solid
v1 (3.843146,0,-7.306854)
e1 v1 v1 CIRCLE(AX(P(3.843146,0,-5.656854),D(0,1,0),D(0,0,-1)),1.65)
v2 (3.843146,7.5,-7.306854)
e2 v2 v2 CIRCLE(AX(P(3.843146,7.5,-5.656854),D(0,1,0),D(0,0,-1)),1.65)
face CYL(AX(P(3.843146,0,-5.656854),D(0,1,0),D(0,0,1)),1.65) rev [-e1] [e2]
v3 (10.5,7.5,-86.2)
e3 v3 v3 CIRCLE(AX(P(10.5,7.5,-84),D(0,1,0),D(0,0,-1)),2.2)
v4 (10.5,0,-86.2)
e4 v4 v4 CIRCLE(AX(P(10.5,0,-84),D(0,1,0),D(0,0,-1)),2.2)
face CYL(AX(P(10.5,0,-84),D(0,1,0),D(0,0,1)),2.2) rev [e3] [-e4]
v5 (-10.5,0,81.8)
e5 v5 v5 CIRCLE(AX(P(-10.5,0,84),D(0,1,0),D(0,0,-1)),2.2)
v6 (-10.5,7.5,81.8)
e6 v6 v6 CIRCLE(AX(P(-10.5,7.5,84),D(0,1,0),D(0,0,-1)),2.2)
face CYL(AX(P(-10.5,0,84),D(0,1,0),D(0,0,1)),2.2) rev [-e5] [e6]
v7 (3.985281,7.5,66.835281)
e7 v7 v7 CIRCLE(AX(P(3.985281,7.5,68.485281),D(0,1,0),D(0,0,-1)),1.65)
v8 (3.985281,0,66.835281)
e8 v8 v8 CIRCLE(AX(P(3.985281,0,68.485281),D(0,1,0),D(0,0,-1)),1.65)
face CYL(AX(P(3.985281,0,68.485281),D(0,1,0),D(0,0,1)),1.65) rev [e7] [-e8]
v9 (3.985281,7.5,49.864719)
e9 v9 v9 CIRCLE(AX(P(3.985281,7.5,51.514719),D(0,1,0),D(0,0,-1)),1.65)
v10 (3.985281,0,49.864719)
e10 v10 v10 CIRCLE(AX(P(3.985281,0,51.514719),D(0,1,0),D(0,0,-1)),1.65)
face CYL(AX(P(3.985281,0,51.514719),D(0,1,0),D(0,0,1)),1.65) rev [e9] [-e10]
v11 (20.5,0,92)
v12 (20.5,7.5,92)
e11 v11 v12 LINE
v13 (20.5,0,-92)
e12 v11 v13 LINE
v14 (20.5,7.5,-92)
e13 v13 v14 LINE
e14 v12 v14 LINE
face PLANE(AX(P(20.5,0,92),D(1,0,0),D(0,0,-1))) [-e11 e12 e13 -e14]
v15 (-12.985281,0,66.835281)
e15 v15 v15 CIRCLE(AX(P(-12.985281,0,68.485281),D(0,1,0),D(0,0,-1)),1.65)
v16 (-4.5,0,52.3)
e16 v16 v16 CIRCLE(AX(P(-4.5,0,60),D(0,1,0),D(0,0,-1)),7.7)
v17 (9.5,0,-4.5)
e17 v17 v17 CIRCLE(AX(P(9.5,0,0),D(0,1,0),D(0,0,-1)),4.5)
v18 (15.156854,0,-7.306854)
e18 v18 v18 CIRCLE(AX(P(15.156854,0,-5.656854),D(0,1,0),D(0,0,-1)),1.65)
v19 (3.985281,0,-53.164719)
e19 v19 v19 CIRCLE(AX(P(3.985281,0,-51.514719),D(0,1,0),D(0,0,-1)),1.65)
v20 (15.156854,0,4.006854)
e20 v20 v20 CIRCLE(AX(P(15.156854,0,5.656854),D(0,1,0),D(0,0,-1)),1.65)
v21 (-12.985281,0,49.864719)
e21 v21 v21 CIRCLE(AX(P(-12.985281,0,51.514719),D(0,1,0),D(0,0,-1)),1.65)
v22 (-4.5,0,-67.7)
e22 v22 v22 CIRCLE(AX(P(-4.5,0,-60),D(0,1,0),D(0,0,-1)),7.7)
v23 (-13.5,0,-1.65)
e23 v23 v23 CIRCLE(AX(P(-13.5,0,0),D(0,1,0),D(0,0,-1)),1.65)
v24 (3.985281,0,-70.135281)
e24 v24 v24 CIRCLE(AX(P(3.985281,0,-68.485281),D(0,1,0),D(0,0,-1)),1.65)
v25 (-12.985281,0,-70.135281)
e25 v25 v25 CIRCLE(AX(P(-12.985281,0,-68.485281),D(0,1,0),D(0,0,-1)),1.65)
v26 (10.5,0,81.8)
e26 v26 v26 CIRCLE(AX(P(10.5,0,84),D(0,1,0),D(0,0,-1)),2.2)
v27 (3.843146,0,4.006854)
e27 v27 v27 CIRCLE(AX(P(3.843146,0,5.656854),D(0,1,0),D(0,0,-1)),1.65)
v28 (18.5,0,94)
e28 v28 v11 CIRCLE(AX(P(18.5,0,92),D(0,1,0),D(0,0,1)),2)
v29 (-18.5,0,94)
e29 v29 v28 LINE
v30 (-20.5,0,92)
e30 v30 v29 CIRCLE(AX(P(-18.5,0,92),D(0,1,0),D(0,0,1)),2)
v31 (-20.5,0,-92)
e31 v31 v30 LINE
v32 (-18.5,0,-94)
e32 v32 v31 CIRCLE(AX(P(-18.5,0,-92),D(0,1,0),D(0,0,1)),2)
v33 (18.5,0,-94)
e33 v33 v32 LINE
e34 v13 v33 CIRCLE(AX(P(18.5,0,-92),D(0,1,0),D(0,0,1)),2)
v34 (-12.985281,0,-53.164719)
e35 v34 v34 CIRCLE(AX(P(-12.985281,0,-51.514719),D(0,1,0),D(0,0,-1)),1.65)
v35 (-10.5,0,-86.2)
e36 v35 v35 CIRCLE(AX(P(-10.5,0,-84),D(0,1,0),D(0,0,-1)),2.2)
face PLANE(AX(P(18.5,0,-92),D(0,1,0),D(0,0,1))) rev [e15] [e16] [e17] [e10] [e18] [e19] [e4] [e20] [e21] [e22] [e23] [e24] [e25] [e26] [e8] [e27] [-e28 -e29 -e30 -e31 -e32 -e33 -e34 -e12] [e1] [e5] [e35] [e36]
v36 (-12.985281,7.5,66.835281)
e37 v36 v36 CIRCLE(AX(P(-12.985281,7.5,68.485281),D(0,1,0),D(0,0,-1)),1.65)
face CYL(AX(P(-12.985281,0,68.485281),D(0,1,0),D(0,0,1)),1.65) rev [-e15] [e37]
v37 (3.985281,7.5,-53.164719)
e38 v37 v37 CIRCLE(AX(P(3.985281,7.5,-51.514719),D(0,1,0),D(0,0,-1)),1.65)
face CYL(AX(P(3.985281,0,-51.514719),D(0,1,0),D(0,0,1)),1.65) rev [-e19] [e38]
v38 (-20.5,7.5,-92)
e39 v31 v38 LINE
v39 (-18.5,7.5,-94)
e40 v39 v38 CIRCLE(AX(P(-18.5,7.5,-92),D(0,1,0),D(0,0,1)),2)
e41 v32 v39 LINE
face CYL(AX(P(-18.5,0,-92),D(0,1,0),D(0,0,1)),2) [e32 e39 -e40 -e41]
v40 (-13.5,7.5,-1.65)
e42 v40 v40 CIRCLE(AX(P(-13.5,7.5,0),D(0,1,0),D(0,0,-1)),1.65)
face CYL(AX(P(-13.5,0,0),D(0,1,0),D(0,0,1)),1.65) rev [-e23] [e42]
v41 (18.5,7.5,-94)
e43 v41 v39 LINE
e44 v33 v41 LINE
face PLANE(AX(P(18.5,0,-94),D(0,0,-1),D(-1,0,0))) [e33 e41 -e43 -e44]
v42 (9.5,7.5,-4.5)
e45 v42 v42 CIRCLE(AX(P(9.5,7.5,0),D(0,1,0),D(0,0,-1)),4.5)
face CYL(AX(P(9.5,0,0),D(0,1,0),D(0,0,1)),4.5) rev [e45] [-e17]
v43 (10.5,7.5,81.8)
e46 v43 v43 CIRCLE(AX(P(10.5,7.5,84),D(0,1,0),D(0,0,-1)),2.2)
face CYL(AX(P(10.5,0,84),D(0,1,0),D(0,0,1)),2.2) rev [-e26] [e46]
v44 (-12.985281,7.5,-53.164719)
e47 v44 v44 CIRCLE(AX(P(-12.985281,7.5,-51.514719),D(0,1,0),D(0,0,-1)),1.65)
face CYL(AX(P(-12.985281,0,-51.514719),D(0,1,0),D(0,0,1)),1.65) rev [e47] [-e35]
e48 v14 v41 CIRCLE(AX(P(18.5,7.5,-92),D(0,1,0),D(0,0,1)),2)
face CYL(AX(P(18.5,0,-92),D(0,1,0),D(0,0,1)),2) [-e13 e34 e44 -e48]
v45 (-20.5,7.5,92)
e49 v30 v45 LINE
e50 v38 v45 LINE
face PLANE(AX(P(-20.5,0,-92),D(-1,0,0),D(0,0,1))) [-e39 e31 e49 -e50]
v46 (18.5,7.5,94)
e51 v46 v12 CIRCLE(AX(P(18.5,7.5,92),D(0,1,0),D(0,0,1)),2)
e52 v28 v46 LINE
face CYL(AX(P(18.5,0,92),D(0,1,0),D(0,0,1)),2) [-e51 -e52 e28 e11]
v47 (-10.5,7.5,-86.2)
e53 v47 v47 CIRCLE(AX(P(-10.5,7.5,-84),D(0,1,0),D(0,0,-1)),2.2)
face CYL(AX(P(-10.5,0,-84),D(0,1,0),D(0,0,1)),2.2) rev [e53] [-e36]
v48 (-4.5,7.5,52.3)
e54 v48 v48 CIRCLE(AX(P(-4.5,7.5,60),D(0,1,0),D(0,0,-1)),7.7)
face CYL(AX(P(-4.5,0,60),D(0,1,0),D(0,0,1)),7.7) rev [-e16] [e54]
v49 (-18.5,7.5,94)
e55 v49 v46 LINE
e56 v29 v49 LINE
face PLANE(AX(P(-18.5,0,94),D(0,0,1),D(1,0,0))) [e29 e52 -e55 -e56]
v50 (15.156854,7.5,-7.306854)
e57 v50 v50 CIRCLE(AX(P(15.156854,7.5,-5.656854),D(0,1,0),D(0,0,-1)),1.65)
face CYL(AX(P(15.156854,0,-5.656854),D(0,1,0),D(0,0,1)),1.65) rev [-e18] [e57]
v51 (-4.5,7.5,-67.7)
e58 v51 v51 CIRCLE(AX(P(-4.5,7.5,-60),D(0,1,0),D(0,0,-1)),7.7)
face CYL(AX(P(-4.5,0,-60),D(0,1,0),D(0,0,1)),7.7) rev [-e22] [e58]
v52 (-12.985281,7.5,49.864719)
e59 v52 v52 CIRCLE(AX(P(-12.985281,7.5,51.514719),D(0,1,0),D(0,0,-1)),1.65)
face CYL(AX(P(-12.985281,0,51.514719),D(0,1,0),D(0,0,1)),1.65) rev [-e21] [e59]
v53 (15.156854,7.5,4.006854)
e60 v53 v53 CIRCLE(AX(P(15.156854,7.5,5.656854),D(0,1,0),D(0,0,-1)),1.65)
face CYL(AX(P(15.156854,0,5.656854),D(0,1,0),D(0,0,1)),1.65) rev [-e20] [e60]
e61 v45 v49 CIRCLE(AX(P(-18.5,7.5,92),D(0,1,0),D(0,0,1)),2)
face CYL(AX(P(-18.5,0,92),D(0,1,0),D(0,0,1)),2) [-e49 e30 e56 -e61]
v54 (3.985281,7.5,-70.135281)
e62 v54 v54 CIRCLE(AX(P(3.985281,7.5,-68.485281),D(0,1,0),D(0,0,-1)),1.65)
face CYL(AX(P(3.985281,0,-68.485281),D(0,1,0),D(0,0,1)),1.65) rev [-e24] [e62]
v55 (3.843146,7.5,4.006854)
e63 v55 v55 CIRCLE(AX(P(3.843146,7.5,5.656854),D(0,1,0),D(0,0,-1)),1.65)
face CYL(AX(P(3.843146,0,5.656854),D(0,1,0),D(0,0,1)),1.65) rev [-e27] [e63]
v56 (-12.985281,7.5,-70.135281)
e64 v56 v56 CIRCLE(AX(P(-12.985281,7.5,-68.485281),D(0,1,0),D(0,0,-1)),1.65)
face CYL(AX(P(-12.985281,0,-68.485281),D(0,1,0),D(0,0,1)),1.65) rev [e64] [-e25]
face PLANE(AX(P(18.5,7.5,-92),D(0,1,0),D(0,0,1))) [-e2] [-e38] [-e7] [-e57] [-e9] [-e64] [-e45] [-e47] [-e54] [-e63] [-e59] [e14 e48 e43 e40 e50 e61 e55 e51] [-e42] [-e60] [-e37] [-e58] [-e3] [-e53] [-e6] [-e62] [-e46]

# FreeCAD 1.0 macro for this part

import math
import FreeCAD as App
import Part
import Sketcher

V = App.Vector
Q = App.Units.Quantity

doc = App.newDocument("Part")
body = doc.addObject("PartDesign::Body", "Body")

sketch1 = body.newObject("Sketcher::SketchObject", "Sketch")
sketch1.AttachmentSupport = (doc.getObject("XZ_Plane"), [""])
sketch1.MapMode = "FlatFace"
sketch1.AttachmentOffset = App.Placement(V(0, 0, -7.5), App.Rotation())
sketch1.addGeometry(Part.LineSegment(V(18.5, -94, 0), V(-18.5, -94, 0)), False)
sketch1.addGeometry(Part.ArcOfCircle(Part.Circle(V(-18.5, -92, 0), V(0, 0, 1), 2), math.radians(-180), math.radians(-90)), False)
sketch1.addGeometry(Part.LineSegment(V(-20.5, -92, 0), V(-20.5, 92, 0)), False)
sketch1.addGeometry(Part.ArcOfCircle(Part.Circle(V(-18.5, 92, 0), V(0, 0, 1), 2), math.radians(90), math.radians(180)), False)
sketch1.addGeometry(Part.LineSegment(V(-18.5, 94, 0), V(18.5, 94, 0)), False)
sketch1.addGeometry(Part.ArcOfCircle(Part.Circle(V(18.5, 92, 0), V(0, 0, 1), 2), math.radians(0), math.radians(90)), False)
sketch1.addGeometry(Part.LineSegment(V(20.5, 92, 0), V(20.5, -92, 0)), False)
sketch1.addGeometry(Part.ArcOfCircle(Part.Circle(V(18.5, -92, 0), V(0, 0, 1), 2), math.radians(-90), math.radians(0)), False)
sketch1.addGeometry(Part.Circle(V(-13, 68.5, 0), V(0, 0, 1), 1.6), False)
sketch1.addGeometry(Part.Circle(V(-10.5, 84, 0), V(0, 0, 1), 2.2), False)
sketch1.addGeometry(Part.Circle(V(-13, 51.5, 0), V(0, 0, 1), 1.6), False)
sketch1.addGeometry(Part.Circle(V(-4.5, 60, 0), V(0, 0, 1), 7.7), False)
sketch1.addGeometry(Part.Circle(V(4, 68.5, 0), V(0, 0, 1), 1.6), False)
sketch1.addGeometry(Part.Circle(V(4, 51.5, 0), V(0, 0, 1), 1.6), False)
sketch1.addGeometry(Part.Circle(V(10.5, 84, 0), V(0, 0, 1), 2.2), False)
sketch1.addGeometry(Part.Circle(V(3.8, 5.7, 0), V(0, 0, 1), 1.6), False)
sketch1.addGeometry(Part.Circle(V(15.2, 5.7, 0), V(0, 0, 1), 1.6), False)
sketch1.addGeometry(Part.Circle(V(-13.5, 0, 0), V(0, 0, 1), 1.6), False)
sketch1.addGeometry(Part.Circle(V(-13, -51.5, 0), V(0, 0, 1), 1.6), False)
sketch1.addGeometry(Part.Circle(V(-13, -68.5, 0), V(0, 0, 1), 1.6), False)
sketch1.addGeometry(Part.Circle(V(-10.5, -84, 0), V(0, 0, 1), 2.2), False)
sketch1.addGeometry(Part.Circle(V(-4.5, -60, 0), V(0, 0, 1), 7.7), False)
sketch1.addGeometry(Part.Circle(V(3.8, -5.7, 0), V(0, 0, 1), 1.6), False)
sketch1.addGeometry(Part.Circle(V(9.5, 0, 0), V(0, 0, 1), 4.5), False)
sketch1.addGeometry(Part.Circle(V(15.2, -5.7, 0), V(0, 0, 1), 1.6), False)
sketch1.addGeometry(Part.Circle(V(4, -51.5, 0), V(0, 0, 1), 1.6), False)
sketch1.addGeometry(Part.Circle(V(4, -68.5, 0), V(0, 0, 1), 1.6), False)
sketch1.addGeometry(Part.Circle(V(10.5, -84, 0), V(0, 0, 1), 2.2), False)
sketch1.addConstraint(Sketcher.Constraint("Tangent", 0, 2, 1, 2))
sketch1.addConstraint(Sketcher.Constraint("Tangent", 1, 1, 2, 1))
sketch1.addConstraint(Sketcher.Constraint("Tangent", 2, 2, 3, 2))
sketch1.addConstraint(Sketcher.Constraint("Tangent", 3, 1, 4, 1))
sketch1.addConstraint(Sketcher.Constraint("Tangent", 4, 2, 5, 2))
sketch1.addConstraint(Sketcher.Constraint("Tangent", 5, 1, 6, 1))
sketch1.addConstraint(Sketcher.Constraint("Tangent", 6, 2, 7, 2))
sketch1.addConstraint(Sketcher.Constraint("Tangent", 7, 1, 0, 1))
sketch1.addConstraint(Sketcher.Constraint("Horizontal", 0))
sketch1.addConstraint(Sketcher.Constraint("Vertical", 2))
sketch1.addConstraint(Sketcher.Constraint("Horizontal", 4))
sketch1.addConstraint(Sketcher.Constraint("Vertical", 6))
sketch1.addConstraint(Sketcher.Constraint("Equal", 1, 3))
sketch1.addConstraint(Sketcher.Constraint("Equal", 3, 5))
sketch1.addConstraint(Sketcher.Constraint("Equal", 5, 7))
sketch1.addConstraint(Sketcher.Constraint("Equal", 8, 10))
sketch1.addConstraint(Sketcher.Constraint("Equal", 10, 12))
sketch1.addConstraint(Sketcher.Constraint("Equal", 12, 13))
sketch1.addConstraint(Sketcher.Constraint("Equal", 9, 14))
sketch1.addConstraint(Sketcher.Constraint("Equal", 13, 15))
sketch1.addConstraint(Sketcher.Constraint("Equal", 15, 16))
sketch1.addConstraint(Sketcher.Constraint("Equal", 16, 17))
sketch1.addConstraint(Sketcher.Constraint("Equal", 17, 18))
sketch1.addConstraint(Sketcher.Constraint("Equal", 18, 19))
sketch1.addConstraint(Sketcher.Constraint("Equal", 14, 20))
sketch1.addConstraint(Sketcher.Constraint("Equal", 11, 21))
sketch1.addConstraint(Sketcher.Constraint("Equal", 19, 22))
sketch1.addConstraint(Sketcher.Constraint("Equal", 22, 24))
sketch1.addConstraint(Sketcher.Constraint("Equal", 24, 25))
sketch1.addConstraint(Sketcher.Constraint("Equal", 25, 26))
sketch1.addConstraint(Sketcher.Constraint("Equal", 20, 27))
sketch1.addConstraint(Sketcher.Constraint("Symmetric", 1, 3, 5, 3, -1, 1))
sketch1.addConstraint(Sketcher.Constraint("Symmetric", 14, 3, 20, 3, -1, 1))
sketch1.addConstraint(Sketcher.Constraint("Symmetric", 9, 3, 27, 3, -1, 1))
sketch1.addConstraint(Sketcher.Constraint("Symmetric", 9, 3, 14, 3, -2))
sketch1.addConstraint(Sketcher.Constraint("Symmetric", 10, 3, 18, 3, -1))
sketch1.addConstraint(Sketcher.Constraint("Symmetric", 8, 3, 19, 3, -1))
sketch1.addConstraint(Sketcher.Constraint("Symmetric", 11, 3, 21, 3, -1))
sketch1.addConstraint(Sketcher.Constraint("Symmetric", 15, 3, 22, 3, -1))
sketch1.addConstraint(Sketcher.Constraint("Symmetric", 16, 3, 24, 3, -1))
sketch1.addConstraint(Sketcher.Constraint("Symmetric", 13, 3, 25, 3, -1))
sketch1.addConstraint(Sketcher.Constraint("Symmetric", 12, 3, 26, 3, -1))
sketch1.addConstraint(Sketcher.Constraint("PointOnObject", 17, 3, -1))
sketch1.addConstraint(Sketcher.Constraint("PointOnObject", 23, 3, -1))
sketch1.addConstraint(Sketcher.Constraint("Horizontal", 8, 3, 12, 3))
sketch1.addConstraint(Sketcher.Constraint("Horizontal", 10, 3, 13, 3))
sketch1.addConstraint(Sketcher.Constraint("Horizontal", 15, 3, 16, 3))
sketch1.addConstraint(Sketcher.Constraint("Vertical", 8, 3, 10, 3))
sketch1.addConstraint(Sketcher.Constraint("Vertical", 12, 3, 13, 3))
sketch1.addConstraint(Sketcher.Constraint("Diameter", 23, Q("9 mm")))
sketch1.addConstraint(Sketcher.Constraint("Radius", 1, Q("2 mm")))
sketch1.addConstraint(Sketcher.Constraint("Diameter", 8, Q("3.3 mm")))
sketch1.addConstraint(Sketcher.Constraint("Diameter", 9, Q("4.4 mm")))
sketch1.addConstraint(Sketcher.Constraint("Diameter", 11, Q("15.4 mm")))
sketch1.addConstraint(Sketcher.Constraint("DistanceX", 0, 2, 0, 1, Q("37 mm")))
sketch1.addConstraint(Sketcher.Constraint("DistanceY", 2, 1, 2, 2, Q("184 mm")))
sketch1.addConstraint(Sketcher.Constraint("DistanceY", -1, 1, 9, 3, Q("84 mm")))
sketch1.addConstraint(Sketcher.Constraint("DistanceY", -1, 1, 11, 3, Q("60 mm")))
sketch1.addConstraint(Sketcher.Constraint("DistanceX", 3, 3, 9, 3, Q("8 mm")))
sketch1.addConstraint(Sketcher.Constraint("DistanceX", 9, 3, 11, 3, Q("6 mm")))
sketch1.addConstraint(Sketcher.Constraint("DistanceX", 17, 3, 11, 3, Q("9 mm")))
sketch1.addConstraint(Sketcher.Constraint("DistanceX", 17, 3, 23, 3, Q("23 mm")))
sketch1.addConstraint(Sketcher.Constraint("DistanceX", 8, 3, -1, 1, Q("12.985281 mm")))
sketch1.addConstraint(Sketcher.Constraint("DistanceY", -1, 1, 8, 3, Q("68.485281 mm")))
sketch1.addConstraint(Sketcher.Constraint("DistanceY", -1, 1, 10, 3, Q("51.514719 mm")))
sketch1.addConstraint(Sketcher.Constraint("DistanceX", -1, 1, 12, 3, Q("3.985281 mm")))
sketch1.addConstraint(Sketcher.Constraint("DistanceX", 15, 3, 16, 3, Q("11.313708 mm")))
sketch1.addConstraint(Sketcher.Constraint("DistanceY", 22, 3, 15, 3, Q("11.313708 mm")))
sketch1.addConstraint(Sketcher.Constraint("DistanceX", -1, 1, 15, 3, Q("3.843146 mm")))
pad1 = body.newObject("PartDesign::Pad", "Pad")
pad1.Profile = sketch1
pad1.Length = 7.5

doc.recompute()
